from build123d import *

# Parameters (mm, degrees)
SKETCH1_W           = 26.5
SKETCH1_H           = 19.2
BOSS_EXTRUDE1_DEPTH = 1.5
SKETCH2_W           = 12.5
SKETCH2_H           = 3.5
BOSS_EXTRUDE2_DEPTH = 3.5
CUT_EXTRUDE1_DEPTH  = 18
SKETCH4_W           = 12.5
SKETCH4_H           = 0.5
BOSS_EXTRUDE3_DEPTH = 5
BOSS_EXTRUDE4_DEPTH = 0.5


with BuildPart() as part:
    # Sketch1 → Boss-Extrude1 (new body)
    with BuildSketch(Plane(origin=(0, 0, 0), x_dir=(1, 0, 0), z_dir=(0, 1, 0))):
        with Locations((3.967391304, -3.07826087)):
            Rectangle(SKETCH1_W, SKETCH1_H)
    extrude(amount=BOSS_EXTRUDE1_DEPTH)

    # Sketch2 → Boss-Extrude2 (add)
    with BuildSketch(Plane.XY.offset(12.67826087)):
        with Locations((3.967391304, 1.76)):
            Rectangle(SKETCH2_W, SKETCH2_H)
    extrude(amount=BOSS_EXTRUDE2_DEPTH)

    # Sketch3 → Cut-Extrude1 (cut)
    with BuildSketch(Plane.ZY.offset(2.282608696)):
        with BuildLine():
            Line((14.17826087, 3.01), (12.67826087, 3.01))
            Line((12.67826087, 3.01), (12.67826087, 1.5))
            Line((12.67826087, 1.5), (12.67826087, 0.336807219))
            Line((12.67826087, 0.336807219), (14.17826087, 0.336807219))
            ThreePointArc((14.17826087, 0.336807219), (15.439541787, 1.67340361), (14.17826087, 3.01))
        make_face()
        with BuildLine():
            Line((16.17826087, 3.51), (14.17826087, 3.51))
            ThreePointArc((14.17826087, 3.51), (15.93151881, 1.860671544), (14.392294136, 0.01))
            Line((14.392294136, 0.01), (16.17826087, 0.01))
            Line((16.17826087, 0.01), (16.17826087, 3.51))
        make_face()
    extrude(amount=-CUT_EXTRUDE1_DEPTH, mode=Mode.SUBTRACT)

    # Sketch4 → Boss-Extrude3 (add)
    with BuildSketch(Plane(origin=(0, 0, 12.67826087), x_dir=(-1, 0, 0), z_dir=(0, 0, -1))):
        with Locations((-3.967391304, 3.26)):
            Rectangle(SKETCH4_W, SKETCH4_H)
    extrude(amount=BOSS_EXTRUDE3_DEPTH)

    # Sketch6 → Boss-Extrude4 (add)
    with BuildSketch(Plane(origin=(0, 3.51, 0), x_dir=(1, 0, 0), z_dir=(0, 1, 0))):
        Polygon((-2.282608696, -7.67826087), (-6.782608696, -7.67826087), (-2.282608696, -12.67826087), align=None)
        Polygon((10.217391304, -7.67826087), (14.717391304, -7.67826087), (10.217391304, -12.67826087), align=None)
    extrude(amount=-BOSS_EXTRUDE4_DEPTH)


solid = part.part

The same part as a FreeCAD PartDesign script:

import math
import FreeCAD as App
import Part
import Sketcher

doc = App.newDocument("Part")
params = doc.addObject("Spreadsheet::Sheet", "Params")
for row, (alias, value) in enumerate([
    ("sketch1_width", "26.5 mm"),
    ("sketch1_height", "19.2 mm"),
    ("pad1_length", "1.5 mm"),
    ("sketch2_width", "12.5 mm"),
    ("sketch2_height", "3.5 mm"),
    ("pad2_length", "3.5 mm"),
    ("sketch3_height", "2 mm"),
    ("sketch3_width", "3.5 mm"),
    ("sketch3_height2", "1.5 mm"),
    ("pocket1_length", "18 mm"),
    ("sketch4_width", "12.5 mm"),
    ("sketch4_height", "0.5 mm"),
    ("pad3_length", "5 mm"),
    ("sketch5_height", "5 mm"),
    ("sketch5_width", "4.5 mm"),
    ("pad4_length", "0.5 mm"),
], start=1):
    params.set(f"A{row}", alias)
    params.set(f"B{row}", "=" + value)
    params.setAlias(f"B{row}", alias)

body = doc.addObject("PartDesign::Body", "Body")

# Sketch on XZ plane
sketch1 = body.newObject("Sketcher::SketchObject", "Sketch")
sketch1.AttachmentSupport = (doc.getObject("XZ_Plane"), [""])
sketch1.MapMode = "FlatFace"
sketch1.addGeometry([
    Part.LineSegment(App.Vector(-9, -7, 0), App.Vector(-9, 13, 0)),
    Part.LineSegment(App.Vector(-9, 13, 0), App.Vector(17, 13, 0)),
    Part.LineSegment(App.Vector(17, 13, 0), App.Vector(17, -7, 0)),
    Part.LineSegment(App.Vector(17, -7, 0), App.Vector(-9, -7, 0)),
], False)
sketch1.addConstraint([
    Sketcher.Constraint("Coincident", 0, 2, 1, 1),
    Sketcher.Constraint("Coincident", 1, 2, 2, 1),
    Sketcher.Constraint("Coincident", 2, 2, 3, 1),
    Sketcher.Constraint("Coincident", 3, 2, 0, 1),
    Sketcher.Constraint("Vertical", 0),
    Sketcher.Constraint("Horizontal", 1),
    Sketcher.Constraint("Vertical", 2),
    Sketcher.Constraint("Horizontal", 3),
    Sketcher.Constraint("DistanceX", 1, 1, 1, 2, 26.5),
    Sketcher.Constraint("DistanceY", 0, 1, 0, 2, 19.2),
    Sketcher.Constraint("DistanceX", 0, 2, -1, 1, 9.282609),
    Sketcher.Constraint("DistanceY", -1, 1, 0, 2, 12.678261),
])
sketch1.setExpression("Constraints[8]", "Params.sketch1_width")
sketch1.setExpression("Constraints[9]", "Params.sketch1_height")
pad1 = body.newObject("PartDesign::Pad", "Pad")
pad1.Profile = sketch1
pad1.setExpression("Length", "Params.pad1_length")
pad1.Reversed = True

# Sketch on XY plane
sketch2 = body.newObject("Sketcher::SketchObject", "Sketch001")
sketch2.AttachmentSupport = (doc.getObject("XY_Plane"), [""])
sketch2.MapMode = "FlatFace"
sketch2.AttachmentOffset = App.Placement(App.Vector(0, 0, 12.678261), App.Rotation())
sketch2.addGeometry([
    Part.LineSegment(App.Vector(-2.3, 3.5, 0), App.Vector(-2.3, 0, 0)),
    Part.LineSegment(App.Vector(-2.3, 0, 0), App.Vector(10.2, 0, 0)),
    Part.LineSegment(App.Vector(10.2, 0, 0), App.Vector(10.2, 3.5, 0)),
    Part.LineSegment(App.Vector(10.2, 3.5, 0), App.Vector(-2.3, 3.5, 0)),
], False)
sketch2.addConstraint([
    Sketcher.Constraint("Coincident", 0, 2, 1, 1),
    Sketcher.Constraint("Coincident", 1, 2, 2, 1),
    Sketcher.Constraint("Coincident", 2, 2, 3, 1),
    Sketcher.Constraint("Coincident", 3, 2, 0, 1),
    Sketcher.Constraint("Vertical", 0),
    Sketcher.Constraint("Horizontal", 1),
    Sketcher.Constraint("Vertical", 2),
    Sketcher.Constraint("Horizontal", 3),
    Sketcher.Constraint("DistanceX", 1, 1, 1, 2, 12.5),
    Sketcher.Constraint("DistanceY", 0, 2, 0, 1, 3.5),
    Sketcher.Constraint("DistanceY", -1, 1, 0, 2, 0.01),
    Sketcher.Constraint("DistanceX", 0, 2, -1, 1, 2.282609),
])
sketch2.setExpression("Constraints[8]", "Params.sketch2_width")
sketch2.setExpression("Constraints[9]", "Params.sketch2_height")
pad2 = body.newObject("PartDesign::Pad", "Pad001")
pad2.Profile = sketch2
pad2.setExpression("Length", "Params.pad2_length")

# Sketch on YZ plane
sketch3 = body.newObject("Sketcher::SketchObject", "Sketch002")
sketch3.AttachmentSupport = (doc.getObject("YZ_Plane"), [""])
sketch3.MapMode = "FlatFace"
sketch3.AttachmentOffset = App.Placement(App.Vector(0, 0, -2.282609), App.Rotation())
sketch3.addGeometry([
    Part.LineSegment(App.Vector(3, 14.2, 0), App.Vector(3, 12.7, 0)),  # 0
    Part.LineSegment(App.Vector(3, 12.7, 0), App.Vector(0.3, 12.7, 0)),  # 1
    Part.LineSegment(App.Vector(0.3, 12.7, 0), App.Vector(0.3, 14.2, 0)),  # 2
    Part.ArcOfCircle(Part.Circle(App.Vector(1.7, 14.1, 0), App.Vector(0, 0, 1), 1.3), math.radians(3), math.radians(177)),  # 3
    Part.LineSegment(App.Vector(3.5, 16.2, 0), App.Vector(3.5, 14.2, 0)),  # 4
    Part.ArcOfCircle(Part.Circle(App.Vector(1.8, 14.2, 0), App.Vector(0, 0, 1), 1.8), math.radians(0), math.radians(173)),  # 5
    Part.LineSegment(App.Vector(0, 14.4, 0), App.Vector(0, 16.2, 0)),  # 6
    Part.LineSegment(App.Vector(0, 16.2, 0), App.Vector(3.5, 16.2, 0)),  # 7
], False)
sketch3.addConstraint([
    Sketcher.Constraint("Coincident", 0, 2, 1, 1),
    Sketcher.Constraint("Coincident", 1, 2, 2, 1),
    Sketcher.Constraint("Coincident", 2, 2, 3, 2),
    Sketcher.Constraint("Coincident", 3, 1, 0, 1),
    Sketcher.Constraint("Coincident", 4, 2, 5, 1),
    Sketcher.Constraint("Coincident", 5, 2, 6, 1),
    Sketcher.Constraint("Coincident", 6, 2, 7, 1),
    Sketcher.Constraint("Coincident", 7, 2, 4, 1),
    Sketcher.Constraint("Vertical", 0),
    Sketcher.Constraint("Horizontal", 1),
    Sketcher.Constraint("Vertical", 2),
    Sketcher.Constraint("Vertical", 4),
    Sketcher.Constraint("Vertical", 6),
    Sketcher.Constraint("Horizontal", 7),
    Sketcher.Constraint("Horizontal", 2, 2, 3, 1),
    Sketcher.Constraint("Horizontal", 3, 1, 4, 2),
    Sketcher.Constraint("DistanceY", 4, 2, 4, 1, 2.0),
    Sketcher.Constraint("DistanceX", 7, 1, 7, 2, 3.5),
    Sketcher.Constraint("DistanceY", 0, 2, 0, 1, 1.5),
    Sketcher.Constraint("DistanceX", 5, 2, 3, 1, 3.0),
    Sketcher.Constraint("DistanceX", -1, 1, 0, 2, 3.01),
    Sketcher.Constraint("Radius", 3, 1.338845),
    Sketcher.Constraint("Radius", 5, 1.756545),
    Sketcher.Constraint("DistanceX", 1, 2, 1, 1, 2.673193),
    Sketcher.Constraint("DistanceY", 6, 1, 6, 2, 1.785967),
    Sketcher.Constraint("DistanceY", -1, 1, 5, 3, 14.178249),
])
sketch3.setExpression("Constraints[16]", "Params.sketch3_height")
sketch3.setExpression("Constraints[17]", "Params.sketch3_width")
sketch3.setExpression("Constraints[18]", "Params.sketch3_height2")
pocket1 = body.newObject("PartDesign::Pocket", "Pocket")
pocket1.Profile = sketch3
pocket1.setExpression("Length", "Params.pocket1_length")
pocket1.Reversed = True

# Sketch on XY plane
sketch4 = body.newObject("Sketcher::SketchObject", "Sketch003")
sketch4.AttachmentSupport = (doc.getObject("XY_Plane"), [""])
sketch4.MapMode = "FlatFace"
sketch4.AttachmentOffset = App.Placement(App.Vector(0, 0, 12.678261), App.Rotation())
sketch4.addGeometry([
    Part.LineSegment(App.Vector(10.2, 3.5, 0), App.Vector(10.2, 3, 0)),
    Part.LineSegment(App.Vector(10.2, 3, 0), App.Vector(-2.3, 3, 0)),
    Part.LineSegment(App.Vector(-2.3, 3, 0), App.Vector(-2.3, 3.5, 0)),
    Part.LineSegment(App.Vector(-2.3, 3.5, 0), App.Vector(10.2, 3.5, 0)),
], False)
sketch4.addConstraint([
    Sketcher.Constraint("Coincident", 0, 2, 1, 1),
    Sketcher.Constraint("Coincident", 1, 2, 2, 1),
    Sketcher.Constraint("Coincident", 2, 2, 3, 1),
    Sketcher.Constraint("Coincident", 3, 2, 0, 1),
    Sketcher.Constraint("Vertical", 0),
    Sketcher.Constraint("Horizontal", 1),
    Sketcher.Constraint("Vertical", 2),
    Sketcher.Constraint("Horizontal", 3),
    Sketcher.Constraint("DistanceX", 1, 2, 1, 1, 12.5),
    Sketcher.Constraint("DistanceY", 0, 2, 0, 1, 0.5),
    Sketcher.Constraint("DistanceY", -1, 1, 0, 2, 3.01),
    Sketcher.Constraint("DistanceX", -1, 1, 0, 2, 10.217391),
])
sketch4.setExpression("Constraints[8]", "Params.sketch4_width")
sketch4.setExpression("Constraints[9]", "Params.sketch4_height")
pad3 = body.newObject("PartDesign::Pad", "Pad002")
pad3.Profile = sketch4
pad3.setExpression("Length", "Params.pad3_length")
pad3.Reversed = True

# Sketch on XZ plane
sketch5 = body.newObject("Sketcher::SketchObject", "Sketch004")
sketch5.AttachmentSupport = (doc.getObject("XZ_Plane"), [""])
sketch5.MapMode = "FlatFace"
sketch5.AttachmentOffset = App.Placement(App.Vector(0, 0, -3.51), App.Rotation())
sketch5.addGeometry([
    Part.LineSegment(App.Vector(-2.3, 7.7, 0), App.Vector(-6.8, 7.7, 0)),  # 0
    Part.LineSegment(App.Vector(-6.8, 7.7, 0), App.Vector(-2.3, 12.7, 0)),  # 1
    Part.LineSegment(App.Vector(-2.3, 12.7, 0), App.Vector(-2.3, 7.7, 0)),  # 2
    Part.LineSegment(App.Vector(14.7, 7.7, 0), App.Vector(10.2, 7.7, 0)),  # 3
    Part.LineSegment(App.Vector(10.2, 7.7, 0), App.Vector(10.2, 12.7, 0)),  # 4
    Part.LineSegment(App.Vector(10.2, 12.7, 0), App.Vector(14.7, 7.7, 0)),  # 5
], False)
sketch5.addConstraint([
    Sketcher.Constraint("Coincident", 0, 2, 1, 1),
    Sketcher.Constraint("Coincident", 1, 2, 2, 1),
    Sketcher.Constraint("Coincident", 2, 2, 0, 1),
    Sketcher.Constraint("Coincident", 3, 2, 4, 1),
    Sketcher.Constraint("Coincident", 4, 2, 5, 1),
    Sketcher.Constraint("Coincident", 5, 2, 3, 1),
    Sketcher.Constraint("Horizontal", 0),
    Sketcher.Constraint("Vertical", 2),
    Sketcher.Constraint("Horizontal", 3),
    Sketcher.Constraint("Vertical", 4),
    Sketcher.Constraint("Horizontal", 2, 2, 3, 2),
    Sketcher.Constraint("Horizontal", 1, 2, 4, 2),
    Sketcher.Constraint("Equal", 0, 3),
    Sketcher.Constraint("DistanceY", 2, 2, 2, 1, 5.0),
    Sketcher.Constraint("DistanceX", 0, 2, 0, 1, 4.5),
    Sketcher.Constraint("DistanceX", 0, 2, 3, 2, 17.0),
    Sketcher.Constraint("DistanceX", 0, 2, -1, 1, 6.782609),
    Sketcher.Constraint("DistanceY", -1, 1, 0, 2, 7.678261),
])
sketch5.setExpression("Constraints[13]", "Params.sketch5_height")
sketch5.setExpression("Constraints[14]", "Params.sketch5_width")
pad4 = body.newObject("PartDesign::Pad", "Pad003")
pad4.Profile = sketch5
pad4.setExpression("Length", "Params.pad4_length")

doc.recompute()
